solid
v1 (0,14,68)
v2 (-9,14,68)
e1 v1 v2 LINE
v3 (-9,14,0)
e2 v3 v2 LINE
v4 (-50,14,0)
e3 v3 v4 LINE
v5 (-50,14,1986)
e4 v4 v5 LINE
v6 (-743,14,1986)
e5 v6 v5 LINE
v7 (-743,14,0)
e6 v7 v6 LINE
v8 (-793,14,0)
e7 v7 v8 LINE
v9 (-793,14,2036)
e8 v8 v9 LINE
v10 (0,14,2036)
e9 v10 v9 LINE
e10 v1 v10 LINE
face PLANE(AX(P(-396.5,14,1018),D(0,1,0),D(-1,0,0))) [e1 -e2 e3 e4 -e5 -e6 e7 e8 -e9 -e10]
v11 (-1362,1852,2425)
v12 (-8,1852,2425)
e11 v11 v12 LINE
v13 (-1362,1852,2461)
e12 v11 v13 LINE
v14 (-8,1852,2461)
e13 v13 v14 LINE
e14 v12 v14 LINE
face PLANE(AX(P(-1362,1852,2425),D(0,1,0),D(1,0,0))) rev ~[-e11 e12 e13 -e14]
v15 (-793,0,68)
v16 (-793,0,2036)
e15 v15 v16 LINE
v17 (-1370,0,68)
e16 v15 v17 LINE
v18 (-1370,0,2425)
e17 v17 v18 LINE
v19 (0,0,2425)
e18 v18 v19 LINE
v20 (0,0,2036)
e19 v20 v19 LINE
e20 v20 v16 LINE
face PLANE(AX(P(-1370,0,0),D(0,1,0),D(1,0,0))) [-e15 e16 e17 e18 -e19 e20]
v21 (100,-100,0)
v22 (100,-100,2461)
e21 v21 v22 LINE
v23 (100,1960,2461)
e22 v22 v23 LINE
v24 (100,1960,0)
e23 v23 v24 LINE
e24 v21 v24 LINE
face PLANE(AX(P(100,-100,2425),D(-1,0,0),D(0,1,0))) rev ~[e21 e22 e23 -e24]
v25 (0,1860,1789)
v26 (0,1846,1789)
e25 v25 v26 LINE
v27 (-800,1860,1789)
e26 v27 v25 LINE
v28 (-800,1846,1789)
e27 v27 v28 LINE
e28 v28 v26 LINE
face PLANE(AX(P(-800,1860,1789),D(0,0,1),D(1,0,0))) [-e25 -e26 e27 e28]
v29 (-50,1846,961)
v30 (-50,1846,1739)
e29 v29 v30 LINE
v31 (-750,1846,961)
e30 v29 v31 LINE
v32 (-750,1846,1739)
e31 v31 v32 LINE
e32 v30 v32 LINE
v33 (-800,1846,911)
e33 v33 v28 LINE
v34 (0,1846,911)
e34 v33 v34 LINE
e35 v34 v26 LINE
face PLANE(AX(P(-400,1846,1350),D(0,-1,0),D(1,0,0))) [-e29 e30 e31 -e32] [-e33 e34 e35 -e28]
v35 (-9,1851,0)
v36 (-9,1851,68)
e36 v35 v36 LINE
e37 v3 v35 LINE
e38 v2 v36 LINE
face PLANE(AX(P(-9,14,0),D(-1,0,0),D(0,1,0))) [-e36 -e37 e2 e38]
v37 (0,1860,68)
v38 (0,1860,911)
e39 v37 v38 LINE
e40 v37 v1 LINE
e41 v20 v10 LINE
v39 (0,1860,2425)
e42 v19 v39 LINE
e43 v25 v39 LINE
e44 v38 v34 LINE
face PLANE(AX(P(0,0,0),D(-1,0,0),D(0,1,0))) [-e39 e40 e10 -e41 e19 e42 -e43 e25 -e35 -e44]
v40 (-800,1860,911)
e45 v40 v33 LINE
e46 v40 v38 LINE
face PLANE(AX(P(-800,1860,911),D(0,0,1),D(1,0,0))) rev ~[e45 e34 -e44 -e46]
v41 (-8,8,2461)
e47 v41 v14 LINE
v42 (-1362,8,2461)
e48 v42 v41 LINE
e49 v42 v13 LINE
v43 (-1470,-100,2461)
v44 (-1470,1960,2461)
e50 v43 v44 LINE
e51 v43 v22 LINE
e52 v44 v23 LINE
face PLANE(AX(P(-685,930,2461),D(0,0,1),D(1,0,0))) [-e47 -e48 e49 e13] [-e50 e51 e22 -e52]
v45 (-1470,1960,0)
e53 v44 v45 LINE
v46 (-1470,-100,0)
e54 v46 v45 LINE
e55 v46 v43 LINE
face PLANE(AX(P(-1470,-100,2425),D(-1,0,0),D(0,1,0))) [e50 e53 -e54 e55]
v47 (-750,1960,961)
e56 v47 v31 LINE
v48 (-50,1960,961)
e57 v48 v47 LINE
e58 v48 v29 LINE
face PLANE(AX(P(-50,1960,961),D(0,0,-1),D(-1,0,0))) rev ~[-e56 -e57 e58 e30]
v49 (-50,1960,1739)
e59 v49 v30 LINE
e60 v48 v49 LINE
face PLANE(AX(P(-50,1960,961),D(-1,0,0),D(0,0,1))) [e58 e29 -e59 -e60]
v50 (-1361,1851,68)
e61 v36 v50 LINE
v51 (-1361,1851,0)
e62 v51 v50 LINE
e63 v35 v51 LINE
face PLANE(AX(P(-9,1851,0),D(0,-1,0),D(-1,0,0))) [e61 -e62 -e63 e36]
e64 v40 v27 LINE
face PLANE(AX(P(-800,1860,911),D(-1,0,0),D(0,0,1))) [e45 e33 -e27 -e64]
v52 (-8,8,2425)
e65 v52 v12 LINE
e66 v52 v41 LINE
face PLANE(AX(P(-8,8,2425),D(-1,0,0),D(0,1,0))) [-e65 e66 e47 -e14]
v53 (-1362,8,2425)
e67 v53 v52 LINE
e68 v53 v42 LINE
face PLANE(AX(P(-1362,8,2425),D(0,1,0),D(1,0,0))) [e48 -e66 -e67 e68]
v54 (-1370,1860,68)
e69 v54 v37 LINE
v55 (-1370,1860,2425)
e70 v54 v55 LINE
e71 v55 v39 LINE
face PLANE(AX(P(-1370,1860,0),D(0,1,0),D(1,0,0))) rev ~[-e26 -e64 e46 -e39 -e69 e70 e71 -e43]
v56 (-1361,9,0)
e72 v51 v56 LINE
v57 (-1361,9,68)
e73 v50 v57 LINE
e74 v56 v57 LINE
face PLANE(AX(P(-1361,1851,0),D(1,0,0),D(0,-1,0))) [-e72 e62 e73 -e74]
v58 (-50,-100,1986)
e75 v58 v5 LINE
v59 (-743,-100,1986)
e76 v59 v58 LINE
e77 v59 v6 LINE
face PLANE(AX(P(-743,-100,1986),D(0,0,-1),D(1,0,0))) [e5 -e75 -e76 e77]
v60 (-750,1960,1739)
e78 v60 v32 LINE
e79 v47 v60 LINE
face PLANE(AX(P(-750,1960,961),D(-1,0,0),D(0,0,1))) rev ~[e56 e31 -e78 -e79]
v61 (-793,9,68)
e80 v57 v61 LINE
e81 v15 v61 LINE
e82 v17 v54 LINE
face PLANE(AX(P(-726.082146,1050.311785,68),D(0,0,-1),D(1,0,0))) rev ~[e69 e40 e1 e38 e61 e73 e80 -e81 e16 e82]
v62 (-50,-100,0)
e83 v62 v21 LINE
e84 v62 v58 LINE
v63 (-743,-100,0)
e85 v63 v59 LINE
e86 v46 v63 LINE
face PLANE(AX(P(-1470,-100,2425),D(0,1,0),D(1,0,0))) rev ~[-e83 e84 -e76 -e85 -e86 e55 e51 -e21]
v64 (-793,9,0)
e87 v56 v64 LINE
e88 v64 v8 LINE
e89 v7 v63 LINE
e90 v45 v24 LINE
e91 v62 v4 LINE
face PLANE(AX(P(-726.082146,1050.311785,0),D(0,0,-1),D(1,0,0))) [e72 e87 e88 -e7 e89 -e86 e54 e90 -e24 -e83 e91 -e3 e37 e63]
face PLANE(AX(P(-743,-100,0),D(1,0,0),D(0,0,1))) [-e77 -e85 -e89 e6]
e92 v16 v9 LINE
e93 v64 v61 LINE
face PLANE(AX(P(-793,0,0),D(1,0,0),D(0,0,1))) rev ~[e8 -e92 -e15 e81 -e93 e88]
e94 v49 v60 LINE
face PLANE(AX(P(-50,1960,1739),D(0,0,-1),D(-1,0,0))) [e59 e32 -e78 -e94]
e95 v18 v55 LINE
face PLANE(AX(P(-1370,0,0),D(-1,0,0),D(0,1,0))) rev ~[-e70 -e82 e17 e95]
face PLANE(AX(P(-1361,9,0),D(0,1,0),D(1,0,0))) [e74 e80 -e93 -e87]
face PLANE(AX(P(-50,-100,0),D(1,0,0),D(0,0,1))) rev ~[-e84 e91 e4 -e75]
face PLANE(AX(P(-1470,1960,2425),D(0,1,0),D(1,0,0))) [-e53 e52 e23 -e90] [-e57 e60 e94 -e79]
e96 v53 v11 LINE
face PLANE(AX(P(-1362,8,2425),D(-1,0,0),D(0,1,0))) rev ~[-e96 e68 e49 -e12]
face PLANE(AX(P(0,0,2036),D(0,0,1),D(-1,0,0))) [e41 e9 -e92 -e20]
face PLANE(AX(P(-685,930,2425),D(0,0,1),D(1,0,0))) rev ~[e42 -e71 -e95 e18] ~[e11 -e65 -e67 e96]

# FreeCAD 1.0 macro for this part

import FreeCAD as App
import Part
import Sketcher

V = App.Vector
Q = App.Units.Quantity


def add_polygon(sketch, points):
    """Adds a closed chain of lines whose ends are joined by coincident constraints."""
    first, n = sketch.GeometryCount, len(points)
    for a, b in zip(points, points[1:] + points[:1]):
        sketch.addGeometry(Part.LineSegment(App.Vector(*a, 0), App.Vector(*b, 0)), False)
    for i in range(n):
        sketch.addConstraint(Sketcher.Constraint("Coincident", first + i, 2, first + (i + 1) % n, 1))

doc = App.newDocument("Part")
body = doc.addObject("PartDesign::Body", "Body")

# Sketch on XY plane
sketch1 = doc.addObject("Sketcher::SketchObject", "Sketch")
body.addObject(sketch1)
sketch1.AttachmentSupport = (doc.XY_Plane, [""])
sketch1.MapMode = "FlatFace"
add_polygon(sketch1, [(-1470, 1960), (-1470, -100), (100, -100), (100, 1960)])  # lines 0-3
add_polygon(sketch1, [(0, 0), (-1370, 0), (-1370, 1860), (0, 1860)])  # lines 4-7
sketch1.addConstraint(Sketcher.Constraint("Vertical", 0))
sketch1.addConstraint(Sketcher.Constraint("Horizontal", 1))
sketch1.addConstraint(Sketcher.Constraint("Vertical", 2))
sketch1.addConstraint(Sketcher.Constraint("Horizontal", 3))
sketch1.addConstraint(Sketcher.Constraint("Horizontal", 4))
sketch1.addConstraint(Sketcher.Constraint("Vertical", 5))
sketch1.addConstraint(Sketcher.Constraint("Horizontal", 6))
sketch1.addConstraint(Sketcher.Constraint("Vertical", 7))
sketch1.addConstraint(Sketcher.Constraint("Coincident", 7, 2, -1, 1))
sketch1.addConstraint(Sketcher.Constraint("DistanceX", 1, 1, 1, 2, Q("1570 mm")))
sketch1.addConstraint(Sketcher.Constraint("DistanceX", 4, 2, 4, 1, Q("1370 mm")))
sketch1.addConstraint(Sketcher.Constraint("DistanceY", 0, 2, 0, 1, Q("2060 mm")))
sketch1.addConstraint(Sketcher.Constraint("DistanceY", 5, 1, 5, 2, Q("1860 mm")))
sketch1.addConstraint(Sketcher.Constraint("DistanceX", 0, 2, -1, 1, Q("1470 mm")))
sketch1.addConstraint(Sketcher.Constraint("DistanceY", 0, 2, -1, 1, Q("100 mm")))
pad1 = doc.addObject("PartDesign::Pad", "Pad")
body.addObject(pad1)
pad1.Profile = sketch1
pad1.Length = 2425

# Sketch on XZ plane
sketch2 = doc.addObject("Sketcher::SketchObject", "Sketch001")
body.addObject(sketch2)
sketch2.AttachmentSupport = (doc.XZ_Plane, [""])
sketch2.MapMode = "FlatFace"
add_polygon(sketch2, [(0, 2036), (0, 0), (-793, 0), (-793, 2036)])  # lines 0-3
sketch2.addConstraint(Sketcher.Constraint("Vertical", 0))
sketch2.addConstraint(Sketcher.Constraint("Horizontal", 1))
sketch2.addConstraint(Sketcher.Constraint("Vertical", 2))
sketch2.addConstraint(Sketcher.Constraint("Horizontal", 3))
sketch2.addConstraint(Sketcher.Constraint("Coincident", 0, 2, -1, 1))
sketch2.addConstraint(Sketcher.Constraint("DistanceX", 1, 2, 1, 1, Q("793 mm")))
sketch2.addConstraint(Sketcher.Constraint("DistanceY", 0, 2, 0, 1, Q("2036 mm")))
pad2 = doc.addObject("PartDesign::Pad", "Pad001")
body.addObject(pad2)
pad2.Profile = sketch2
pad2.Length = 14
pad2.Reversed = True

# Sketch on XZ plane
sketch3 = doc.addObject("Sketcher::SketchObject", "Sketch002")
body.addObject(sketch3)
sketch3.AttachmentSupport = (doc.XZ_Plane, [""])
sketch3.MapMode = "FlatFace"
sketch3.AttachmentOffset = App.Placement(V(0, 0, 100), App.Rotation())
add_polygon(sketch3, [(-743, 1986), (-743, 0), (-50, 0), (-50, 1986)])  # lines 0-3
sketch3.addConstraint(Sketcher.Constraint("Vertical", 0))
sketch3.addConstraint(Sketcher.Constraint("Horizontal", 1))
sketch3.addConstraint(Sketcher.Constraint("Vertical", 2))
sketch3.addConstraint(Sketcher.Constraint("Horizontal", 3))
sketch3.addConstraint(Sketcher.Constraint("PointOnObject", 0, 2, -1))
sketch3.addConstraint(Sketcher.Constraint("DistanceX", 1, 1, 1, 2, Q("693 mm")))
sketch3.addConstraint(Sketcher.Constraint("DistanceY", 0, 2, 0, 1, Q("1986 mm")))
sketch3.addConstraint(Sketcher.Constraint("DistanceX", 0, 2, -1, 1, Q("743 mm")))
pocket1 = doc.addObject("PartDesign::Pocket", "Pocket")
body.addObject(pocket1)
pocket1.Profile = sketch3
pocket1.Length = 114

# Sketch on XZ plane
sketch4 = doc.addObject("Sketcher::SketchObject", "Sketch003")
body.addObject(sketch4)
sketch4.AttachmentSupport = (doc.XZ_Plane, [""])
sketch4.MapMode = "FlatFace"
sketch4.AttachmentOffset = App.Placement(V(0, 0, -1860), App.Rotation())
add_polygon(sketch4, [(-800, 1789), (-800, 911), (0, 911), (0, 1789)])  # lines 0-3
sketch4.addConstraint(Sketcher.Constraint("Vertical", 0))
sketch4.addConstraint(Sketcher.Constraint("Horizontal", 1))
sketch4.addConstraint(Sketcher.Constraint("Vertical", 2))
sketch4.addConstraint(Sketcher.Constraint("Horizontal", 3))
sketch4.addConstraint(Sketcher.Constraint("PointOnObject", 1, 2, -2))
sketch4.addConstraint(Sketcher.Constraint("DistanceX", 1, 1, 1, 2, Q("800 mm")))
sketch4.addConstraint(Sketcher.Constraint("DistanceY", 0, 2, 0, 1, Q("878 mm")))
sketch4.addConstraint(Sketcher.Constraint("DistanceY", -1, 1, 0, 2, Q("911 mm")))
pad3 = doc.addObject("PartDesign::Pad", "Pad002")
body.addObject(pad3)
pad3.Profile = sketch4
pad3.Length = 14

# Sketch on XZ plane
sketch5 = doc.addObject("Sketcher::SketchObject", "Sketch004")
body.addObject(sketch5)
sketch5.AttachmentSupport = (doc.XZ_Plane, [""])
sketch5.MapMode = "FlatFace"
sketch5.AttachmentOffset = App.Placement(V(0, 0, -1960), App.Rotation())
add_polygon(sketch5, [(-50, 1739), (-50, 961), (-750, 961), (-750, 1739)])  # lines 0-3
sketch5.addConstraint(Sketcher.Constraint("Vertical", 0))
sketch5.addConstraint(Sketcher.Constraint("Horizontal", 1))
sketch5.addConstraint(Sketcher.Constraint("Vertical", 2))
sketch5.addConstraint(Sketcher.Constraint("Horizontal", 3))
sketch5.addConstraint(Sketcher.Constraint("DistanceX", 1, 2, 1, 1, Q("700 mm")))
sketch5.addConstraint(Sketcher.Constraint("DistanceY", 0, 2, 0, 1, Q("778 mm")))
sketch5.addConstraint(Sketcher.Constraint("DistanceX", 0, 2, -1, 1, Q("50 mm")))
sketch5.addConstraint(Sketcher.Constraint("DistanceY", -1, 1, 0, 2, Q("961 mm")))
pocket2 = doc.addObject("PartDesign::Pocket", "Pocket001")
body.addObject(pocket2)
pocket2.Profile = sketch5
pocket2.Length = 114
pocket2.Reversed = True

# Sketch on XY plane
sketch6 = doc.addObject("Sketcher::SketchObject", "Sketch005")
body.addObject(sketch6)
sketch6.AttachmentSupport = (doc.XY_Plane, [""])
sketch6.MapMode = "FlatFace"
add_polygon(sketch6, [(-1361, 1851), (-1361, 9), (-743, 9), (-743, 0), (-1370, 0), (-1370, 1860), (0, 1860), (0, 14), (-9, 14), (-9, 1851)])  # lines 0-9
sketch6.addConstraint(Sketcher.Constraint("Vertical", 0))
sketch6.addConstraint(Sketcher.Constraint("Horizontal", 1))
sketch6.addConstraint(Sketcher.Constraint("Vertical", 2))
sketch6.addConstraint(Sketcher.Constraint("Horizontal", 3))
sketch6.addConstraint(Sketcher.Constraint("Vertical", 4))
sketch6.addConstraint(Sketcher.Constraint("Horizontal", 5))
sketch6.addConstraint(Sketcher.Constraint("Vertical", 6))
sketch6.addConstraint(Sketcher.Constraint("Horizontal", 7))
sketch6.addConstraint(Sketcher.Constraint("Vertical", 8))
sketch6.addConstraint(Sketcher.Constraint("Horizontal", 9))
sketch6.addConstraint(Sketcher.Constraint("PointOnObject", 2, 2, -1))
sketch6.addConstraint(Sketcher.Constraint("PointOnObject", 5, 2, -2))
sketch6.addConstraint(Sketcher.Constraint("Equal", 7, 2))
sketch6.addConstraint(Sketcher.Constraint("DistanceX", 1, 1, 1, 2, Q("618 mm")))
sketch6.addConstraint(Sketcher.Constraint("DistanceX", 3, 2, 3, 1, Q("627 mm")))
sketch6.addConstraint(Sketcher.Constraint("DistanceX", 5, 1, 5, 2, Q("1370 mm")))
sketch6.addConstraint(Sketcher.Constraint("DistanceX", 7, 2, 7, 1, Q("9 mm")))
sketch6.addConstraint(Sketcher.Constraint("DistanceY", 0, 2, 0, 1, Q("1842 mm")))
sketch6.addConstraint(Sketcher.Constraint("DistanceY", 4, 1, 4, 2, Q("1860 mm")))
sketch6.addConstraint(Sketcher.Constraint("DistanceY", 6, 2, 6, 1, Q("1846 mm")))
pad4 = doc.addObject("PartDesign::Pad", "Pad003")
body.addObject(pad4)
pad4.Profile = sketch6
pad4.Length = 68

# Sketch on XY plane
sketch7 = doc.addObject("Sketcher::SketchObject", "Sketch006")
body.addObject(sketch7)
sketch7.AttachmentSupport = (doc.XY_Plane, [""])
sketch7.MapMode = "FlatFace"
sketch7.AttachmentOffset = App.Placement(V(0, 0, 2425), App.Rotation())
add_polygon(sketch7, [(-1470, 1960), (-1470, -100), (100, -100), (100, 1960)])  # lines 0-3
add_polygon(sketch7, [(-8, 8), (-1362, 8), (-1362, 1852), (-8, 1852)])  # lines 4-7
sketch7.addConstraint(Sketcher.Constraint("Vertical", 0))
sketch7.addConstraint(Sketcher.Constraint("Horizontal", 1))
sketch7.addConstraint(Sketcher.Constraint("Vertical", 2))
sketch7.addConstraint(Sketcher.Constraint("Horizontal", 3))
sketch7.addConstraint(Sketcher.Constraint("Horizontal", 4))
sketch7.addConstraint(Sketcher.Constraint("Vertical", 5))
sketch7.addConstraint(Sketcher.Constraint("Horizontal", 6))
sketch7.addConstraint(Sketcher.Constraint("Vertical", 7))
sketch7.addConstraint(Sketcher.Constraint("DistanceX", 1, 1, 1, 2, Q("1570 mm")))
sketch7.addConstraint(Sketcher.Constraint("DistanceX", 4, 2, 4, 1, Q("1354 mm")))
sketch7.addConstraint(Sketcher.Constraint("DistanceY", 0, 2, 0, 1, Q("2060 mm")))
sketch7.addConstraint(Sketcher.Constraint("DistanceY", 5, 1, 5, 2, Q("1844 mm")))
sketch7.addConstraint(Sketcher.Constraint("DistanceX", 0, 2, -1, 1, Q("1470 mm")))
sketch7.addConstraint(Sketcher.Constraint("DistanceY", 0, 2, -1, 1, Q("100 mm")))
sketch7.addConstraint(Sketcher.Constraint("DistanceX", 4, 2, -1, 1, Q("1362 mm")))
sketch7.addConstraint(Sketcher.Constraint("DistanceY", -1, 1, 4, 2, Q("8 mm")))
pad5 = doc.addObject("PartDesign::Pad", "Pad004")
body.addObject(pad5)
pad5.Profile = sketch7
pad5.Length = 36

doc.recompute()
